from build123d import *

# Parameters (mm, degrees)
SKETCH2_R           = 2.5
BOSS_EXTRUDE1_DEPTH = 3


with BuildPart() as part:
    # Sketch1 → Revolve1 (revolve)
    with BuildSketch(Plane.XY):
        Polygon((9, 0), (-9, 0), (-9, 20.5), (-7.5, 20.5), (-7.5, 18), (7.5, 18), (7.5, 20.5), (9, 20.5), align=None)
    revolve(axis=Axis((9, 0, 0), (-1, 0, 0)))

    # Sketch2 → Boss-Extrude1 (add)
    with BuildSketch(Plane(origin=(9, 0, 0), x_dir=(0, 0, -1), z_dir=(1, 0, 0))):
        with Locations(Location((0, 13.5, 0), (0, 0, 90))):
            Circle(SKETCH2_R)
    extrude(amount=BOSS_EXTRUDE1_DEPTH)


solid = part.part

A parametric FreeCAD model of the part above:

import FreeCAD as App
import Part
import Sketcher

doc = App.newDocument("Part")
body = doc.addObject("PartDesign::Body", "Body")

sketch1 = doc.addObject("Sketcher::SketchObject", "Sketch")
body.addObject(sketch1)
sketch1.AttachmentSupport = (doc.XY_Plane, [""])
sketch1.MapMode = "FlatFace"
sketch1.addGeometry([
    Part.LineSegment(App.Vector(-9, 0, 0), App.Vector(9, 0, 0)),
    Part.LineSegment(App.Vector(9, 0, 0), App.Vector(9, 20.5, 0)),
    Part.LineSegment(App.Vector(9, 20.5, 0), App.Vector(7.5, 20.5, 0)),
    Part.LineSegment(App.Vector(7.5, 20.5, 0), App.Vector(7.5, 18, 0)),
    Part.LineSegment(App.Vector(7.5, 18, 0), App.Vector(-7.5, 18, 0)),
    Part.LineSegment(App.Vector(-7.5, 18, 0), App.Vector(-7.5, 20.5, 0)),
    Part.LineSegment(App.Vector(-7.5, 20.5, 0), App.Vector(-9, 20.5, 0)),
    Part.LineSegment(App.Vector(-9, 20.5, 0), App.Vector(-9, 0, 0)),
], False)
sketch1.addConstraint([
    Sketcher.Constraint("Coincident", 0, 2, 1, 1),
    Sketcher.Constraint("Coincident", 1, 2, 2, 1),
    Sketcher.Constraint("Coincident", 2, 2, 3, 1),
    Sketcher.Constraint("Coincident", 3, 2, 4, 1),
    Sketcher.Constraint("Coincident", 4, 2, 5, 1),
    Sketcher.Constraint("Coincident", 5, 2, 6, 1),
    Sketcher.Constraint("Coincident", 6, 2, 7, 1),
    Sketcher.Constraint("Coincident", 7, 2, 0, 1),
    Sketcher.Constraint("Horizontal", 0),
    Sketcher.Constraint("Vertical", 1),
    Sketcher.Constraint("Horizontal", 2),
    Sketcher.Constraint("Vertical", 3),
    Sketcher.Constraint("Horizontal", 4),
    Sketcher.Constraint("Vertical", 5),
    Sketcher.Constraint("Horizontal", 6),
    Sketcher.Constraint("Vertical", 7),
    Sketcher.Constraint("Symmetric", 0, 2, 7, 2, -1, 1),
    Sketcher.Constraint("Symmetric", 2, 2, 5, 2, -2),
    Sketcher.Constraint("DistanceX", 0, 1, 0, 2, 18.0),
    Sketcher.Constraint("DistanceX", 4, 2, 4, 1, 15.0),
    Sketcher.Constraint("DistanceY", 1, 1, 1, 2, 20.5),
    Sketcher.Constraint("DistanceY", 3, 2, 3, 1, 2.5),
])
revolution = doc.addObject("PartDesign::Revolution", "Revolution")
body.addObject(revolution)
revolution.Profile = sketch1
revolution.ReferenceAxis = (sketch1, ["H_Axis"])
revolution.Angle = 360

sketch2 = doc.addObject("Sketcher::SketchObject", "Sketch001")
body.addObject(sketch2)
sketch2.AttachmentSupport = (doc.YZ_Plane, [""])
sketch2.MapMode = "FlatFace"
sketch2.AttachmentOffset = App.Placement(App.Vector(0, 0, 9), App.Rotation())
sketch2.addGeometry(Part.Circle(App.Vector(13.5, 0, 0), App.Vector(0, 0, 1), 2.5), False)
sketch2.addConstraint([
    Sketcher.Constraint("PointOnObject", 0, 3, -1),
    Sketcher.Constraint("Diameter", 0, 5.0),
    Sketcher.Constraint("DistanceX", -1, 1, 0, 3, 13.5),
])
pad1 = doc.addObject("PartDesign::Pad", "Pad")
body.addObject(pad1)
pad1.Profile = sketch2
pad1.Length = 3

doc.recompute()
